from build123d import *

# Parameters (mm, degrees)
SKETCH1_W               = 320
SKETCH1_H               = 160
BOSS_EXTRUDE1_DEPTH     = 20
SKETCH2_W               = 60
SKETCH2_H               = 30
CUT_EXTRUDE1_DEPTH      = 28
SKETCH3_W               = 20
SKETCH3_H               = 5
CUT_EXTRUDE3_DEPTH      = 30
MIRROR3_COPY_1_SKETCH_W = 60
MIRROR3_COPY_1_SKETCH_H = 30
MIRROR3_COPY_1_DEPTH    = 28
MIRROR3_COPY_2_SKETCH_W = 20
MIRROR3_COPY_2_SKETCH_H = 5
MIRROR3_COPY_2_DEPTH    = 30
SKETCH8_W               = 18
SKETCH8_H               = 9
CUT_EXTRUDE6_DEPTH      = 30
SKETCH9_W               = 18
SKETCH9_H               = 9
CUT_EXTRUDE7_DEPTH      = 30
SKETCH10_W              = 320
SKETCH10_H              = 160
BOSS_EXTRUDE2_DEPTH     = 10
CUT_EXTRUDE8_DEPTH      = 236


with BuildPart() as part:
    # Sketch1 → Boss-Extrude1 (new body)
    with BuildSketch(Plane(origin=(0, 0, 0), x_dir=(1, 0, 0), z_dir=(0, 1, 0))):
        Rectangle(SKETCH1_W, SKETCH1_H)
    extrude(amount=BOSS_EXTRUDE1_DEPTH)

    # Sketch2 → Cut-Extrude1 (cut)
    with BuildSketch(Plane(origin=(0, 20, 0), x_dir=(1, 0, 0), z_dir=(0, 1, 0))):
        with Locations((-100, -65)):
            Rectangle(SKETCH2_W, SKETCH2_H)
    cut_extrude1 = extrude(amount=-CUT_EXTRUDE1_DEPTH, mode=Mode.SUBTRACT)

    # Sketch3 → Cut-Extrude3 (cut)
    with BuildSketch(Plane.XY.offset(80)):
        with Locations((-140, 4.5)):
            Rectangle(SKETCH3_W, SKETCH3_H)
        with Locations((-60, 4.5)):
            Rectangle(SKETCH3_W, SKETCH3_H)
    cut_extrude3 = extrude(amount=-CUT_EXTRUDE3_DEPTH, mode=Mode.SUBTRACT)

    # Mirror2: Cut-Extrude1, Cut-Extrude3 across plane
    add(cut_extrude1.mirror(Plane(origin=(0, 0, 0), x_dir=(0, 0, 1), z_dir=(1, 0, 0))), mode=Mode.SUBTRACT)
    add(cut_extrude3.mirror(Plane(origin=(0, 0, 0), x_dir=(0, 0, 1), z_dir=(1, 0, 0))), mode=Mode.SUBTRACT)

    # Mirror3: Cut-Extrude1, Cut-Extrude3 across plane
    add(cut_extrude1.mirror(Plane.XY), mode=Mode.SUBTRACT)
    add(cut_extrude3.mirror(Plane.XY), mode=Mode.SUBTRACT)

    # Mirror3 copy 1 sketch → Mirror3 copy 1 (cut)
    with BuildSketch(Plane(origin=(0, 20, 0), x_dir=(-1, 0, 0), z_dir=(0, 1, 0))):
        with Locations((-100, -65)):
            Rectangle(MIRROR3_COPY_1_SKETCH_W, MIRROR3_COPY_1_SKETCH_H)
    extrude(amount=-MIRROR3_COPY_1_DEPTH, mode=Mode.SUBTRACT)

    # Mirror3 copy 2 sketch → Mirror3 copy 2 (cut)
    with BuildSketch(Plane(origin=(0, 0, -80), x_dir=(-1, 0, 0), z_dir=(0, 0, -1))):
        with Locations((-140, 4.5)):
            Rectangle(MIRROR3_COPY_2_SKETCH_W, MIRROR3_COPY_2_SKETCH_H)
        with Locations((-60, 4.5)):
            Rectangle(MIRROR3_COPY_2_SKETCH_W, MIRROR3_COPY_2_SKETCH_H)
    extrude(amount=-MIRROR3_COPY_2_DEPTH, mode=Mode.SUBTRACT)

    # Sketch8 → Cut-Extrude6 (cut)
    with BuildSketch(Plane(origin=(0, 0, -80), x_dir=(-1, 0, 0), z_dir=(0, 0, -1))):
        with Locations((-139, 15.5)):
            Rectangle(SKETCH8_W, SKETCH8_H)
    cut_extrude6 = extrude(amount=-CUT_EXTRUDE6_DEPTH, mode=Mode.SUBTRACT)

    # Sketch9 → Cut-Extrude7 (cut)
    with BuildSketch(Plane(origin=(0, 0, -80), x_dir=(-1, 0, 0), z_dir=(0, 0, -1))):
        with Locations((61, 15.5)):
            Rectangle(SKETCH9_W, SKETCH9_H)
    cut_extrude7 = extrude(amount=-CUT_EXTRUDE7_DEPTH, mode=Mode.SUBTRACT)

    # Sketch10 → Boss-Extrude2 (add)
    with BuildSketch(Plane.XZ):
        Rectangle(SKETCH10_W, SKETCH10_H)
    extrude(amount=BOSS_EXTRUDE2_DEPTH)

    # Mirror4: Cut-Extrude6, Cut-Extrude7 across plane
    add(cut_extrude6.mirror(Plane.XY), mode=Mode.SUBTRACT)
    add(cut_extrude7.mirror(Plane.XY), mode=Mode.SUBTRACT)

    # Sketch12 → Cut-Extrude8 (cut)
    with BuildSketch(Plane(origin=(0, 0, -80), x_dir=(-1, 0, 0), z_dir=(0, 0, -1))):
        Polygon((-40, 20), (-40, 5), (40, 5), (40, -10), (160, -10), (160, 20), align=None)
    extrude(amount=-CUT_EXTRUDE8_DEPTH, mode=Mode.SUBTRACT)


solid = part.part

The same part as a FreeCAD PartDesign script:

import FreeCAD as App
import Part
import Sketcher

doc = App.newDocument("Part")
params = doc.addObject("Spreadsheet::Sheet", "Params")
for row, (alias, value) in enumerate([
    ("sketch1_width", "320 mm"),
    ("sketch1_height", "160 mm"),
    ("pad1_length", "20 mm"),
    ("sketch2_width", "60 mm"),
    ("sketch2_height", "30 mm"),
    ("pocket1_length", "28 mm"),
    ("sketch3_width", "20 mm"),
    ("sketch3_height", "5 mm"),
    ("pocket2_length", "30 mm"),
    ("sketch4_width", "60 mm"),
    ("sketch4_height", "30 mm"),
    ("pocket3_length", "28 mm"),
    ("sketch5_width", "20 mm"),
    ("sketch5_height", "5 mm"),
    ("pocket4_length", "30 mm"),
    ("sketch6_width", "18 mm"),
    ("sketch6_height", "9 mm"),
    ("pocket5_length", "30 mm"),
    ("sketch7_width", "18 mm"),
    ("sketch7_height", "9 mm"),
    ("pocket6_length", "30 mm"),
    ("sketch8_width", "320 mm"),
    ("sketch8_height", "160 mm"),
    ("pad2_length", "10 mm"),
    ("sketch9_width", "80 mm"),
    ("sketch9_width2", "120 mm"),
    ("sketch9_height", "15 mm"),
    ("pocket7_length", "236 mm"),
], start=1):
    params.set(f"A{row}", alias)
    params.set(f"B{row}", "=" + value)
    params.setAlias(f"B{row}", alias)

body = doc.addObject("PartDesign::Body", "Body")

# Sketch on XZ plane
sketch1 = body.newObject("Sketcher::SketchObject", "Sketch")
sketch1.AttachmentSupport = (doc.getObject("XZ_Plane"), [""])
sketch1.MapMode = "FlatFace"
sketch1.addGeometry([
    Part.LineSegment(App.Vector(-160, -80, 0), App.Vector(-160, 80, 0)),
    Part.LineSegment(App.Vector(-160, 80, 0), App.Vector(160, 80, 0)),
    Part.LineSegment(App.Vector(160, 80, 0), App.Vector(160, -80, 0)),
    Part.LineSegment(App.Vector(160, -80, 0), App.Vector(-160, -80, 0)),
], False)
sketch1.addConstraint([
    Sketcher.Constraint("Coincident", 0, 2, 1, 1),
    Sketcher.Constraint("Coincident", 1, 2, 2, 1),
    Sketcher.Constraint("Coincident", 2, 2, 3, 1),
    Sketcher.Constraint("Coincident", 3, 2, 0, 1),
    Sketcher.Constraint("Vertical", 0),
    Sketcher.Constraint("Horizontal", 1),
    Sketcher.Constraint("Vertical", 2),
    Sketcher.Constraint("Horizontal", 3),
    Sketcher.Constraint("Symmetric", 0, 2, 2, 2, -1, 1),
    Sketcher.Constraint("DistanceX", 1, 1, 1, 2, 320.0),
    Sketcher.Constraint("DistanceY", 0, 1, 0, 2, 160.0),
])
sketch1.setExpression("Constraints[9]", "Params.sketch1_width")
sketch1.setExpression("Constraints[10]", "Params.sketch1_height")
pad1 = body.newObject("PartDesign::Pad", "Pad")
pad1.Profile = sketch1
pad1.setExpression("Length", "Params.pad1_length")
pad1.Reversed = True

# Sketch on XZ plane
sketch2 = body.newObject("Sketcher::SketchObject", "Sketch001")
sketch2.AttachmentSupport = (doc.getObject("XZ_Plane"), [""])
sketch2.MapMode = "FlatFace"
sketch2.AttachmentOffset = App.Placement(App.Vector(0, 0, -20), App.Rotation())
sketch2.addGeometry([
    Part.LineSegment(App.Vector(-130, 50, 0), App.Vector(-130, 80, 0)),
    Part.LineSegment(App.Vector(-130, 80, 0), App.Vector(-70, 80, 0)),
    Part.LineSegment(App.Vector(-70, 80, 0), App.Vector(-70, 50, 0)),
    Part.LineSegment(App.Vector(-70, 50, 0), App.Vector(-130, 50, 0)),
], False)
sketch2.addConstraint([
    Sketcher.Constraint("Coincident", 0, 2, 1, 1),
    Sketcher.Constraint("Coincident", 1, 2, 2, 1),
    Sketcher.Constraint("Coincident", 2, 2, 3, 1),
    Sketcher.Constraint("Coincident", 3, 2, 0, 1),
    Sketcher.Constraint("Vertical", 0),
    Sketcher.Constraint("Horizontal", 1),
    Sketcher.Constraint("Vertical", 2),
    Sketcher.Constraint("Horizontal", 3),
    Sketcher.Constraint("DistanceX", 1, 1, 1, 2, 60.0),
    Sketcher.Constraint("DistanceY", 0, 1, 0, 2, 30.0),
    Sketcher.Constraint("DistanceX", 0, 2, -1, 1, 130.0),
    Sketcher.Constraint("DistanceY", -1, 1, 0, 2, 80.0),
])
sketch2.setExpression("Constraints[8]", "Params.sketch2_width")
sketch2.setExpression("Constraints[9]", "Params.sketch2_height")
pocket1 = body.newObject("PartDesign::Pocket", "Pocket")
pocket1.Profile = sketch2
pocket1.setExpression("Length", "Params.pocket1_length")
pocket1.Reversed = True

# Sketch on XY plane
sketch3 = body.newObject("Sketcher::SketchObject", "Sketch002")
sketch3.AttachmentSupport = (doc.getObject("XY_Plane"), [""])
sketch3.MapMode = "FlatFace"
sketch3.AttachmentOffset = App.Placement(App.Vector(0, 0, 80), App.Rotation())
sketch3.addGeometry([
    Part.LineSegment(App.Vector(-150, 7, 0), App.Vector(-150, 2, 0)),  # 0
    Part.LineSegment(App.Vector(-150, 2, 0), App.Vector(-130, 2, 0)),  # 1
    Part.LineSegment(App.Vector(-130, 2, 0), App.Vector(-130, 7, 0)),  # 2
    Part.LineSegment(App.Vector(-130, 7, 0), App.Vector(-150, 7, 0)),  # 3
    Part.LineSegment(App.Vector(-70, 7, 0), App.Vector(-70, 2, 0)),  # 4
    Part.LineSegment(App.Vector(-70, 2, 0), App.Vector(-50, 2, 0)),  # 5
    Part.LineSegment(App.Vector(-50, 2, 0), App.Vector(-50, 7, 0)),  # 6
    Part.LineSegment(App.Vector(-50, 7, 0), App.Vector(-70, 7, 0)),  # 7
], False)
sketch3.addConstraint([
    Sketcher.Constraint("Coincident", 0, 2, 1, 1),
    Sketcher.Constraint("Coincident", 1, 2, 2, 1),
    Sketcher.Constraint("Coincident", 2, 2, 3, 1),
    Sketcher.Constraint("Coincident", 3, 2, 0, 1),
    Sketcher.Constraint("Coincident", 4, 2, 5, 1),
    Sketcher.Constraint("Coincident", 5, 2, 6, 1),
    Sketcher.Constraint("Coincident", 6, 2, 7, 1),
    Sketcher.Constraint("Coincident", 7, 2, 4, 1),
    Sketcher.Constraint("Vertical", 0),
    Sketcher.Constraint("Horizontal", 1),
    Sketcher.Constraint("Vertical", 2),
    Sketcher.Constraint("Horizontal", 3),
    Sketcher.Constraint("Vertical", 4),
    Sketcher.Constraint("Horizontal", 5),
    Sketcher.Constraint("Vertical", 6),
    Sketcher.Constraint("Horizontal", 7),
    Sketcher.Constraint("Horizontal", 1, 2, 4, 2),
    Sketcher.Constraint("Horizontal", 3, 2, 6, 2),
    Sketcher.Constraint("Equal", 3, 5),
    Sketcher.Constraint("DistanceX", 1, 1, 1, 2, 20.0),
    Sketcher.Constraint("DistanceY", 0, 2, 0, 1, 5.0),
    Sketcher.Constraint("DistanceX", 0, 2, -1, 1, 150.0),
    Sketcher.Constraint("DistanceY", -1, 1, 0, 2, 2.0),
    Sketcher.Constraint("DistanceX", 4, 2, -1, 1, 70.0),
])
sketch3.setExpression("Constraints[19]", "Params.sketch3_width")
sketch3.setExpression("Constraints[20]", "Params.sketch3_height")
pocket2 = body.newObject("PartDesign::Pocket", "Pocket001")
pocket2.Profile = sketch3
pocket2.setExpression("Length", "Params.pocket2_length")
doc.recompute()

mirrored = body.newObject("PartDesign::Mirrored", "Mirrored")
mirrored.Originals = [pocket1, pocket2]
mirrored.MirrorPlane = (doc.getObject("YZ_Plane"), [""])
body.Tip = mirrored
doc.recompute()

mirrored2 = body.newObject("PartDesign::Mirrored", "Mirrored001")
mirrored2.Originals = [pocket1, pocket2]
mirrored2.MirrorPlane = (doc.getObject("XY_Plane"), [""])
body.Tip = mirrored2

# Sketch on XZ plane
sketch4 = body.newObject("Sketcher::SketchObject", "Sketch003")
sketch4.AttachmentSupport = (doc.getObject("XZ_Plane"), [""])
sketch4.MapMode = "FlatFace"
sketch4.AttachmentOffset = App.Placement(App.Vector(0, 0, -20), App.Rotation())
sketch4.addGeometry([
    Part.LineSegment(App.Vector(130, -50, 0), App.Vector(130, -80, 0)),
    Part.LineSegment(App.Vector(130, -80, 0), App.Vector(70, -80, 0)),
    Part.LineSegment(App.Vector(70, -80, 0), App.Vector(70, -50, 0)),
    Part.LineSegment(App.Vector(70, -50, 0), App.Vector(130, -50, 0)),
], False)
sketch4.addConstraint([
    Sketcher.Constraint("Coincident", 0, 2, 1, 1),
    Sketcher.Constraint("Coincident", 1, 2, 2, 1),
    Sketcher.Constraint("Coincident", 2, 2, 3, 1),
    Sketcher.Constraint("Coincident", 3, 2, 0, 1),
    Sketcher.Constraint("Vertical", 0),
    Sketcher.Constraint("Horizontal", 1),
    Sketcher.Constraint("Vertical", 2),
    Sketcher.Constraint("Horizontal", 3),
    Sketcher.Constraint("DistanceX", 1, 2, 1, 1, 60.0),
    Sketcher.Constraint("DistanceY", 0, 2, 0, 1, 30.0),
    Sketcher.Constraint("DistanceX", -1, 1, 0, 2, 130.0),
    Sketcher.Constraint("DistanceY", 0, 2, -1, 1, 80.0),
])
sketch4.setExpression("Constraints[8]", "Params.sketch4_width")
sketch4.setExpression("Constraints[9]", "Params.sketch4_height")
pocket3 = body.newObject("PartDesign::Pocket", "Pocket002")
pocket3.Profile = sketch4
pocket3.setExpression("Length", "Params.pocket3_length")
pocket3.Reversed = True

# Sketch on XY plane
sketch5 = body.newObject("Sketcher::SketchObject", "Sketch004")
sketch5.AttachmentSupport = (doc.getObject("XY_Plane"), [""])
sketch5.MapMode = "FlatFace"
sketch5.AttachmentOffset = App.Placement(App.Vector(0, 0, -80), App.Rotation())
sketch5.addGeometry([
    Part.LineSegment(App.Vector(150, 7, 0), App.Vector(150, 2, 0)),  # 0
    Part.LineSegment(App.Vector(150, 2, 0), App.Vector(130, 2, 0)),  # 1
    Part.LineSegment(App.Vector(130, 2, 0), App.Vector(130, 7, 0)),  # 2
    Part.LineSegment(App.Vector(130, 7, 0), App.Vector(150, 7, 0)),  # 3
    Part.LineSegment(App.Vector(70, 7, 0), App.Vector(70, 2, 0)),  # 4
    Part.LineSegment(App.Vector(70, 2, 0), App.Vector(50, 2, 0)),  # 5
    Part.LineSegment(App.Vector(50, 2, 0), App.Vector(50, 7, 0)),  # 6
    Part.LineSegment(App.Vector(50, 7, 0), App.Vector(70, 7, 0)),  # 7
], False)
sketch5.addConstraint([
    Sketcher.Constraint("Coincident", 0, 2, 1, 1),
    Sketcher.Constraint("Coincident", 1, 2, 2, 1),
    Sketcher.Constraint("Coincident", 2, 2, 3, 1),
    Sketcher.Constraint("Coincident", 3, 2, 0, 1),
    Sketcher.Constraint("Coincident", 4, 2, 5, 1),
    Sketcher.Constraint("Coincident", 5, 2, 6, 1),
    Sketcher.Constraint("Coincident", 6, 2, 7, 1),
    Sketcher.Constraint("Coincident", 7, 2, 4, 1),
    Sketcher.Constraint("Vertical", 0),
    Sketcher.Constraint("Horizontal", 1),
    Sketcher.Constraint("Vertical", 2),
    Sketcher.Constraint("Horizontal", 3),
    Sketcher.Constraint("Vertical", 4),
    Sketcher.Constraint("Horizontal", 5),
    Sketcher.Constraint("Vertical", 6),
    Sketcher.Constraint("Horizontal", 7),
    Sketcher.Constraint("Horizontal", 1, 2, 4, 2),
    Sketcher.Constraint("Horizontal", 3, 2, 6, 2),
    Sketcher.Constraint("Equal", 3, 5),
    Sketcher.Constraint("DistanceX", 1, 2, 1, 1, 20.0),
    Sketcher.Constraint("DistanceY", 0, 2, 0, 1, 5.0),
    Sketcher.Constraint("DistanceX", -1, 1, 0, 2, 150.0),
    Sketcher.Constraint("DistanceY", -1, 1, 0, 2, 2.0),
    Sketcher.Constraint("DistanceX", -1, 1, 4, 2, 70.0),
])
sketch5.setExpression("Constraints[19]", "Params.sketch5_width")
sketch5.setExpression("Constraints[20]", "Params.sketch5_height")
pocket4 = body.newObject("PartDesign::Pocket", "Pocket003")
pocket4.Profile = sketch5
pocket4.setExpression("Length", "Params.pocket4_length")
pocket4.Reversed = True

# Sketch on XY plane
sketch6 = body.newObject("Sketcher::SketchObject", "Sketch005")
sketch6.AttachmentSupport = (doc.getObject("XY_Plane"), [""])
sketch6.MapMode = "FlatFace"
sketch6.AttachmentOffset = App.Placement(App.Vector(0, 0, -80), App.Rotation())
sketch6.addGeometry([
    Part.LineSegment(App.Vector(148, 20, 0), App.Vector(148, 11, 0)),
    Part.LineSegment(App.Vector(148, 11, 0), App.Vector(130, 11, 0)),
    Part.LineSegment(App.Vector(130, 11, 0), App.Vector(130, 20, 0)),
    Part.LineSegment(App.Vector(130, 20, 0), App.Vector(148, 20, 0)),
], False)
sketch6.addConstraint([
    Sketcher.Constraint("Coincident", 0, 2, 1, 1),
    Sketcher.Constraint("Coincident", 1, 2, 2, 1),
    Sketcher.Constraint("Coincident", 2, 2, 3, 1),
    Sketcher.Constraint("Coincident", 3, 2, 0, 1),
    Sketcher.Constraint("Vertical", 0),
    Sketcher.Constraint("Horizontal", 1),
    Sketcher.Constraint("Vertical", 2),
    Sketcher.Constraint("Horizontal", 3),
    Sketcher.Constraint("DistanceX", 1, 2, 1, 1, 18.0),
    Sketcher.Constraint("DistanceY", 0, 2, 0, 1, 9.0),
    Sketcher.Constraint("DistanceX", -1, 1, 0, 2, 148.0),
    Sketcher.Constraint("DistanceY", -1, 1, 0, 2, 11.0),
])
sketch6.setExpression("Constraints[8]", "Params.sketch6_width")
sketch6.setExpression("Constraints[9]", "Params.sketch6_height")
pocket5 = body.newObject("PartDesign::Pocket", "Pocket004")
pocket5.Profile = sketch6
pocket5.setExpression("Length", "Params.pocket5_length")
pocket5.Reversed = True

# Sketch on XY plane
sketch7 = body.newObject("Sketcher::SketchObject", "Sketch006")
sketch7.AttachmentSupport = (doc.getObject("XY_Plane"), [""])
sketch7.MapMode = "FlatFace"
sketch7.AttachmentOffset = App.Placement(App.Vector(0, 0, -80), App.Rotation())
sketch7.addGeometry([
    Part.LineSegment(App.Vector(-52, 20, 0), App.Vector(-52, 11, 0)),
    Part.LineSegment(App.Vector(-52, 11, 0), App.Vector(-70, 11, 0)),
    Part.LineSegment(App.Vector(-70, 11, 0), App.Vector(-70, 20, 0)),
    Part.LineSegment(App.Vector(-70, 20, 0), App.Vector(-52, 20, 0)),
], False)
sketch7.addConstraint([
    Sketcher.Constraint("Coincident", 0, 2, 1, 1),
    Sketcher.Constraint("Coincident", 1, 2, 2, 1),
    Sketcher.Constraint("Coincident", 2, 2, 3, 1),
    Sketcher.Constraint("Coincident", 3, 2, 0, 1),
    Sketcher.Constraint("Vertical", 0),
    Sketcher.Constraint("Horizontal", 1),
    Sketcher.Constraint("Vertical", 2),
    Sketcher.Constraint("Horizontal", 3),
    Sketcher.Constraint("DistanceX", 1, 2, 1, 1, 18.0),
    Sketcher.Constraint("DistanceY", 0, 2, 0, 1, 9.0),
    Sketcher.Constraint("DistanceX", 0, 2, -1, 1, 52.0),
    Sketcher.Constraint("DistanceY", -1, 1, 0, 2, 11.0),
])
sketch7.setExpression("Constraints[8]", "Params.sketch7_width")
sketch7.setExpression("Constraints[9]", "Params.sketch7_height")
pocket6 = body.newObject("PartDesign::Pocket", "Pocket005")
pocket6.Profile = sketch7
pocket6.setExpression("Length", "Params.pocket6_length")
pocket6.Reversed = True

# Sketch on XZ plane
sketch8 = body.newObject("Sketcher::SketchObject", "Sketch007")
sketch8.AttachmentSupport = (doc.getObject("XZ_Plane"), [""])
sketch8.MapMode = "FlatFace"
sketch8.addGeometry([
    Part.LineSegment(App.Vector(-160, 80, 0), App.Vector(-160, -80, 0)),
    Part.LineSegment(App.Vector(-160, -80, 0), App.Vector(160, -80, 0)),
    Part.LineSegment(App.Vector(160, -80, 0), App.Vector(160, 80, 0)),
    Part.LineSegment(App.Vector(160, 80, 0), App.Vector(-160, 80, 0)),
], False)
sketch8.addConstraint([
    Sketcher.Constraint("Coincident", 0, 2, 1, 1),
    Sketcher.Constraint("Coincident", 1, 2, 2, 1),
    Sketcher.Constraint("Coincident", 2, 2, 3, 1),
    Sketcher.Constraint("Coincident", 3, 2, 0, 1),
    Sketcher.Constraint("Vertical", 0),
    Sketcher.Constraint("Horizontal", 1),
    Sketcher.Constraint("Vertical", 2),
    Sketcher.Constraint("Horizontal", 3),
    Sketcher.Constraint("Symmetric", 0, 2, 2, 2, -1, 1),
    Sketcher.Constraint("DistanceX", 1, 1, 1, 2, 320.0),
    Sketcher.Constraint("DistanceY", 0, 2, 0, 1, 160.0),
])
sketch8.setExpression("Constraints[9]", "Params.sketch8_width")
sketch8.setExpression("Constraints[10]", "Params.sketch8_height")
pad2 = body.newObject("PartDesign::Pad", "Pad001")
pad2.Profile = sketch8
pad2.setExpression("Length", "Params.pad2_length")
doc.recompute()

mirrored3 = body.newObject("PartDesign::Mirrored", "Mirrored002")
mirrored3.Originals = [pocket5, pocket6]
mirrored3.MirrorPlane = (doc.getObject("XY_Plane"), [""])
body.Tip = mirrored3

# Sketch on XY plane
sketch9 = body.newObject("Sketcher::SketchObject", "Sketch008")
sketch9.AttachmentSupport = (doc.getObject("XY_Plane"), [""])
sketch9.MapMode = "FlatFace"
sketch9.AttachmentOffset = App.Placement(App.Vector(0, 0, -80), App.Rotation())
sketch9.addGeometry([
    Part.LineSegment(App.Vector(40, 20, 0), App.Vector(40, 5, 0)),  # 0
    Part.LineSegment(App.Vector(40, 5, 0), App.Vector(-40, 5, 0)),  # 1
    Part.LineSegment(App.Vector(-40, 5, 0), App.Vector(-40, -10, 0)),  # 2
    Part.LineSegment(App.Vector(-40, -10, 0), App.Vector(-160, -10, 0)),  # 3
    Part.LineSegment(App.Vector(-160, -10, 0), App.Vector(-160, 20, 0)),  # 4
    Part.LineSegment(App.Vector(-160, 20, 0), App.Vector(40, 20, 0)),  # 5
], False)
sketch9.addConstraint([
    Sketcher.Constraint("Coincident", 0, 2, 1, 1),
    Sketcher.Constraint("Coincident", 1, 2, 2, 1),
    Sketcher.Constraint("Coincident", 2, 2, 3, 1),
    Sketcher.Constraint("Coincident", 3, 2, 4, 1),
    Sketcher.Constraint("Coincident", 4, 2, 5, 1),
    Sketcher.Constraint("Coincident", 5, 2, 0, 1),
    Sketcher.Constraint("Vertical", 0),
    Sketcher.Constraint("Horizontal", 1),
    Sketcher.Constraint("Vertical", 2),
    Sketcher.Constraint("Horizontal", 3),
    Sketcher.Constraint("Vertical", 4),
    Sketcher.Constraint("Horizontal", 5),
    Sketcher.Constraint("Equal", 0, 2),
    Sketcher.Constraint("DistanceX", 1, 2, 1, 1, 80.0),
    Sketcher.Constraint("DistanceX", 3, 2, 3, 1, 120.0),
    Sketcher.Constraint("DistanceY", 0, 2, 0, 1, 15.0),
    Sketcher.Constraint("DistanceX", -1, 1, 0, 2, 40.0),
    Sketcher.Constraint("DistanceY", -1, 1, 0, 2, 5.0),
])
sketch9.setExpression("Constraints[13]", "Params.sketch9_width")
sketch9.setExpression("Constraints[14]", "Params.sketch9_width2")
sketch9.setExpression("Constraints[15]", "Params.sketch9_height")
pocket7 = body.newObject("PartDesign::Pocket", "Pocket006")
pocket7.Profile = sketch9
pocket7.setExpression("Length", "Params.pocket7_length")
pocket7.Reversed = True

doc.recompute()
